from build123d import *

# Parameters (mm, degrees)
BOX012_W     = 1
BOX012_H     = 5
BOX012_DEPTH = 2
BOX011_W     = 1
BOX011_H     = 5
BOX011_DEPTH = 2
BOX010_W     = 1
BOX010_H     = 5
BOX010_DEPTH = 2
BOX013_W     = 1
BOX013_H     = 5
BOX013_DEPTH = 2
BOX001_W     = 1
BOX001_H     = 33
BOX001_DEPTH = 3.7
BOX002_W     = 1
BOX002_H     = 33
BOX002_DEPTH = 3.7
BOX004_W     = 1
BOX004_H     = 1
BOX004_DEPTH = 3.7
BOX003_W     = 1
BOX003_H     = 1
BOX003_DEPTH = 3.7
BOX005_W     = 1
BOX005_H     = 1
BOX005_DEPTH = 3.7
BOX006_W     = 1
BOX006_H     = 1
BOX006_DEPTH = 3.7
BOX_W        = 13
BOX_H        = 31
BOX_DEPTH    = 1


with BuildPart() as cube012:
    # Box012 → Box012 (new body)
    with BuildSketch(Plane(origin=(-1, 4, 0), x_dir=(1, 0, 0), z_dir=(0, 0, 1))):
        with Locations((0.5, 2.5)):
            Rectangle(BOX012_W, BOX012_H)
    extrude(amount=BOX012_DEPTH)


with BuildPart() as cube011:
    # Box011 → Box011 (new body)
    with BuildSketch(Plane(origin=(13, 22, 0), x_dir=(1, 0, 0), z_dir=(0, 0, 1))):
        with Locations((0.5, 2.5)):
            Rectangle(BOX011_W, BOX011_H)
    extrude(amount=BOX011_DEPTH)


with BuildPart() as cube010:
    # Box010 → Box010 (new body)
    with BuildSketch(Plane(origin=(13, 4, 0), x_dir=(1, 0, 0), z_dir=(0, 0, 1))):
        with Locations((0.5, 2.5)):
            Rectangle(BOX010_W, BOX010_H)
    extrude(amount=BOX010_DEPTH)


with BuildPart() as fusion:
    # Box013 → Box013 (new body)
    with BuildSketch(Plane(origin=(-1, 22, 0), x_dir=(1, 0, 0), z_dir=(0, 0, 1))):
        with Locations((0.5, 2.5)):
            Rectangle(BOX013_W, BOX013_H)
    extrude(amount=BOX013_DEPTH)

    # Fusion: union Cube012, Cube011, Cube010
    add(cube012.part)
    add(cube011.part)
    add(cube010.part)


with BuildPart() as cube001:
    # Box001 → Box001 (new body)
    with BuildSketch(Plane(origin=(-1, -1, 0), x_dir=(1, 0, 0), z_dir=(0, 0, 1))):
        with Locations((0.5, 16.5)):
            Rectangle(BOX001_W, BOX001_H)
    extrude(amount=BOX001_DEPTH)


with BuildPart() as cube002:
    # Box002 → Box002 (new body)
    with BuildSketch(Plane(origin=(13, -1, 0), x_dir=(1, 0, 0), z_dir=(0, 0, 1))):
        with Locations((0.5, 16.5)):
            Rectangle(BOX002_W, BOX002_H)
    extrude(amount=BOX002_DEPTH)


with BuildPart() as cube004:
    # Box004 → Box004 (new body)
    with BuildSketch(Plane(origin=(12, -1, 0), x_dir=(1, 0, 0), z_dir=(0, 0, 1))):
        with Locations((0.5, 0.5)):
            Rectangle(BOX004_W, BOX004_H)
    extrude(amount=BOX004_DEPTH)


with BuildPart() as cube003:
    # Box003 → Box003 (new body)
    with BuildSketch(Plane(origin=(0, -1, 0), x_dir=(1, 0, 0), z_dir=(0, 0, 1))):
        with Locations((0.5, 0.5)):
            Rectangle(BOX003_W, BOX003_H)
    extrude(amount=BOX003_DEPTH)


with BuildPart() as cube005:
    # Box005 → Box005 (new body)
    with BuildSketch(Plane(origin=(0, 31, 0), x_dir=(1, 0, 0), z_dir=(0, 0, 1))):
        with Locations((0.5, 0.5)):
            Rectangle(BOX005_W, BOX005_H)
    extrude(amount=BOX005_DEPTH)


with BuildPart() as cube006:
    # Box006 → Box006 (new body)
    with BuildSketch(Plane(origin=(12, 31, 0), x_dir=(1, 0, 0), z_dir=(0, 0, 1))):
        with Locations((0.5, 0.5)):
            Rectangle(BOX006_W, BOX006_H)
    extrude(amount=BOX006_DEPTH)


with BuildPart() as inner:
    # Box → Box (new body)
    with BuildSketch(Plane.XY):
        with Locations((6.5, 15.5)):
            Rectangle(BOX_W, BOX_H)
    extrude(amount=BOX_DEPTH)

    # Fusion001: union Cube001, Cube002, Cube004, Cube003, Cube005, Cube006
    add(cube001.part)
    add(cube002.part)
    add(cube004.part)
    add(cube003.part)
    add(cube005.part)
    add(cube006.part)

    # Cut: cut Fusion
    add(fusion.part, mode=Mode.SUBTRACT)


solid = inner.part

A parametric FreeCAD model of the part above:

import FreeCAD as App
import Part
import Sketcher

V = App.Vector


def add_polygon(sketch, points):
    """Adds a closed chain of lines whose ends are joined by coincident constraints."""
    first, n = sketch.GeometryCount, len(points)
    for a, b in zip(points, points[1:] + points[:1]):
        sketch.addGeometry(Part.LineSegment(App.Vector(*a, 0), App.Vector(*b, 0)), False)
    for i in range(n):
        sketch.addConstraint(Sketcher.Constraint("Coincident", first + i, 2, first + (i + 1) % n, 1))

doc = App.newDocument("Part")
params = doc.addObject("Spreadsheet::Sheet", "Params")
for row, (alias, value) in enumerate([
    ("sketch1_width", "1 mm"),
    ("sketch1_height", "5 mm"),
    ("pad1_length", "2 mm"),
    ("sketch2_width", "1 mm"),
    ("sketch2_height", "5 mm"),
    ("pad2_length", "2 mm"),
    ("sketch3_width", "1 mm"),
    ("sketch3_height", "5 mm"),
    ("pad3_length", "2 mm"),
    ("sketch4_width", "1 mm"),
    ("sketch4_height", "5 mm"),
    ("pad4_length", "2 mm"),
    ("sketch5_width", "1 mm"),
    ("sketch5_height", "33 mm"),
    ("pad5_length", "3.7 mm"),
    ("sketch6_width", "1 mm"),
    ("sketch6_height", "33 mm"),
    ("pad6_length", "3.7 mm"),
    ("sketch7_width", "1 mm"),
    ("pad7_length", "3.7 mm"),
    ("sketch8_width", "1 mm"),
    ("pad8_length", "3.7 mm"),
    ("sketch9_width", "1 mm"),
    ("pad9_length", "3.7 mm"),
    ("sketch10_width", "1 mm"),
    ("pad10_length", "3.7 mm"),
    ("sketch11_width", "13 mm"),
    ("sketch11_height", "31 mm"),
    ("pad11_length", "1 mm"),
], start=1):
    params.set(f"A{row}", alias)
    params.set(f"B{row}", "=" + value)
    params.setAlias(f"B{row}", alias)

body = doc.addObject("PartDesign::Body", "Body")

sketch1 = body.newObject("Sketcher::SketchObject", "Sketch")
sketch1.AttachmentSupport = (doc.getObject("XY_Plane"), [""])
sketch1.MapMode = "FlatFace"
add_polygon(sketch1, [(-1, 9), (-1, 4), (0, 4), (0, 9)])
sketch1.addConstraint([
    Sketcher.Constraint("Vertical", 0),
    Sketcher.Constraint("Horizontal", 1),
    Sketcher.Constraint("Vertical", 2),
    Sketcher.Constraint("Horizontal", 3),
    Sketcher.Constraint("PointOnObject", 1, 2, -2),
    Sketcher.Constraint("DistanceX", 1, 1, 1, 2, 1.0),
    Sketcher.Constraint("DistanceY", 0, 2, 0, 1, 5.0),
    Sketcher.Constraint("DistanceY", -1, 1, 0, 2, 4.0),
])
sketch1.setExpression("Constraints[9]", "Params.sketch1_width")
sketch1.setExpression("Constraints[10]", "Params.sketch1_height")
pad1 = body.newObject("PartDesign::Pad", "Pad")
pad1.Profile = sketch1
pad1.setExpression("Length", "Params.pad1_length")
body2 = doc.addObject("PartDesign::Body", "Body001")

sketch2 = body2.newObject("Sketcher::SketchObject", "Sketch001")
sketch2.AttachmentSupport = (doc.getObject("XY_Plane001"), [""])
sketch2.MapMode = "FlatFace"
add_polygon(sketch2, [(13, 27), (13, 22), (14, 22), (14, 27)])
sketch2.addConstraint([
    Sketcher.Constraint("Vertical", 0),
    Sketcher.Constraint("Horizontal", 1),
    Sketcher.Constraint("Vertical", 2),
    Sketcher.Constraint("Horizontal", 3),
    Sketcher.Constraint("DistanceX", 1, 1, 1, 2, 1.0),
    Sketcher.Constraint("DistanceY", 0, 2, 0, 1, 5.0),
    Sketcher.Constraint("DistanceX", -1, 1, 0, 2, 13.0),
    Sketcher.Constraint("DistanceY", -1, 1, 0, 2, 22.0),
])
sketch2.setExpression("Constraints[8]", "Params.sketch2_width")
sketch2.setExpression("Constraints[9]", "Params.sketch2_height")
pad2 = body2.newObject("PartDesign::Pad", "Pad001")
pad2.Profile = sketch2
pad2.setExpression("Length", "Params.pad2_length")
body3 = doc.addObject("PartDesign::Body", "Body002")

sketch3 = body3.newObject("Sketcher::SketchObject", "Sketch002")
sketch3.AttachmentSupport = (doc.getObject("XY_Plane002"), [""])
sketch3.MapMode = "FlatFace"
add_polygon(sketch3, [(13, 9), (13, 4), (14, 4), (14, 9)])
sketch3.addConstraint([
    Sketcher.Constraint("Vertical", 0),
    Sketcher.Constraint("Horizontal", 1),
    Sketcher.Constraint("Vertical", 2),
    Sketcher.Constraint("Horizontal", 3),
    Sketcher.Constraint("DistanceX", 1, 1, 1, 2, 1.0),
    Sketcher.Constraint("DistanceY", 0, 2, 0, 1, 5.0),
    Sketcher.Constraint("DistanceX", -1, 1, 0, 2, 13.0),
    Sketcher.Constraint("DistanceY", -1, 1, 0, 2, 4.0),
])
sketch3.setExpression("Constraints[8]", "Params.sketch3_width")
sketch3.setExpression("Constraints[9]", "Params.sketch3_height")
pad3 = body3.newObject("PartDesign::Pad", "Pad002")
pad3.Profile = sketch3
pad3.setExpression("Length", "Params.pad3_length")
body4 = doc.addObject("PartDesign::Body", "Body003")
body4.AllowCompound = True

sketch4 = body4.newObject("Sketcher::SketchObject", "Sketch003")
sketch4.AttachmentSupport = (doc.getObject("XY_Plane003"), [""])
sketch4.MapMode = "FlatFace"
add_polygon(sketch4, [(-1, 27), (-1, 22), (0, 22), (0, 27)])
sketch4.addConstraint([
    Sketcher.Constraint("Vertical", 0),
    Sketcher.Constraint("Horizontal", 1),
    Sketcher.Constraint("Vertical", 2),
    Sketcher.Constraint("Horizontal", 3),
    Sketcher.Constraint("PointOnObject", 1, 2, -2),
    Sketcher.Constraint("DistanceX", 1, 1, 1, 2, 1.0),
    Sketcher.Constraint("DistanceY", 0, 2, 0, 1, 5.0),
    Sketcher.Constraint("DistanceY", -1, 1, 0, 2, 22.0),
])
sketch4.setExpression("Constraints[9]", "Params.sketch4_width")
sketch4.setExpression("Constraints[10]", "Params.sketch4_height")
pad4 = body4.newObject("PartDesign::Pad", "Pad003")
pad4.Profile = sketch4
pad4.setExpression("Length", "Params.pad4_length")
doc.recompute()

boolean = body4.newObject("PartDesign::Boolean", "Boolean")
boolean.Type = "Fuse"
boolean.addObjects([body])
doc.recompute()

boolean2 = body4.newObject("PartDesign::Boolean", "Boolean001")
boolean2.Type = "Fuse"
boolean2.addObjects([body2])
doc.recompute()

boolean3 = body4.newObject("PartDesign::Boolean", "Boolean002")
boolean3.Type = "Fuse"
boolean3.addObjects([body3])
body5 = doc.addObject("PartDesign::Body", "Body004")

sketch5 = body5.newObject("Sketcher::SketchObject", "Sketch004")
sketch5.AttachmentSupport = (doc.getObject("XY_Plane004"), [""])
sketch5.MapMode = "FlatFace"
add_polygon(sketch5, [(-1, 32), (-1, -1), (0, -1), (0, 32)])
sketch5.addConstraint([
    Sketcher.Constraint("Vertical", 0),
    Sketcher.Constraint("Horizontal", 1),
    Sketcher.Constraint("Vertical", 2),
    Sketcher.Constraint("Horizontal", 3),
    Sketcher.Constraint("PointOnObject", 1, 2, -2),
    Sketcher.Constraint("DistanceX", 1, 1, 1, 2, 1.0),
    Sketcher.Constraint("DistanceY", 0, 2, 0, 1, 33.0),
    Sketcher.Constraint("DistanceY", 0, 2, -1, 1, 1.0),
])
sketch5.setExpression("Constraints[9]", "Params.sketch5_width")
sketch5.setExpression("Constraints[10]", "Params.sketch5_height")
pad5 = body5.newObject("PartDesign::Pad", "Pad004")
pad5.Profile = sketch5
pad5.setExpression("Length", "Params.pad5_length")
body6 = doc.addObject("PartDesign::Body", "Body005")

sketch6 = body6.newObject("Sketcher::SketchObject", "Sketch005")
sketch6.AttachmentSupport = (doc.getObject("XY_Plane005"), [""])
sketch6.MapMode = "FlatFace"
add_polygon(sketch6, [(13, 32), (13, -1), (14, -1), (14, 32)])
sketch6.addConstraint([
    Sketcher.Constraint("Vertical", 0),
    Sketcher.Constraint("Horizontal", 1),
    Sketcher.Constraint("Vertical", 2),
    Sketcher.Constraint("Horizontal", 3),
    Sketcher.Constraint("DistanceX", 1, 1, 1, 2, 1.0),
    Sketcher.Constraint("DistanceY", 0, 2, 0, 1, 33.0),
    Sketcher.Constraint("DistanceX", -1, 1, 0, 2, 13.0),
    Sketcher.Constraint("DistanceY", 0, 2, -1, 1, 1.0),
])
sketch6.setExpression("Constraints[8]", "Params.sketch6_width")
sketch6.setExpression("Constraints[9]", "Params.sketch6_height")
pad6 = body6.newObject("PartDesign::Pad", "Pad005")
pad6.Profile = sketch6
pad6.setExpression("Length", "Params.pad6_length")
body7 = doc.addObject("PartDesign::Body", "Body006")

sketch7 = body7.newObject("Sketcher::SketchObject", "Sketch006")
sketch7.AttachmentSupport = (doc.getObject("XY_Plane006"), [""])
sketch7.MapMode = "FlatFace"
add_polygon(sketch7, [(12, 0), (12, -1), (13, -1), (13, 0)])
sketch7.addConstraint([
    Sketcher.Constraint("Vertical", 0),
    Sketcher.Constraint("Horizontal", 1),
    Sketcher.Constraint("Vertical", 2),
    Sketcher.Constraint("Horizontal", 3),
    Sketcher.Constraint("PointOnObject", 2, 2, -1),
    Sketcher.Constraint("Equal", 3, 0),
    Sketcher.Constraint("DistanceX", 1, 1, 1, 2, 1.0),
    Sketcher.Constraint("DistanceX", -1, 1, 0, 2, 12.0),
])
sketch7.setExpression("Constraints[10]", "Params.sketch7_width")
pad7 = body7.newObject("PartDesign::Pad", "Pad006")
pad7.Profile = sketch7
pad7.setExpression("Length", "Params.pad7_length")
body8 = doc.addObject("PartDesign::Body", "Body007")

sketch8 = body8.newObject("Sketcher::SketchObject", "Sketch007")
sketch8.AttachmentSupport = (doc.getObject("XY_Plane007"), [""])
sketch8.MapMode = "FlatFace"
add_polygon(sketch8, [(0, 0), (0, -1), (1, -1), (1, 0)])
sketch8.addConstraint([
    Sketcher.Constraint("Vertical", 0),
    Sketcher.Constraint("Horizontal", 1),
    Sketcher.Constraint("Vertical", 2),
    Sketcher.Constraint("Horizontal", 3),
    Sketcher.Constraint("Coincident", 3, 2, -1, 1),
    Sketcher.Constraint("Equal", 3, 0),
    Sketcher.Constraint("DistanceX", 1, 1, 1, 2, 1.0),
])
sketch8.setExpression("Constraints[10]", "Params.sketch8_width")
pad8 = body8.newObject("PartDesign::Pad", "Pad007")
pad8.Profile = sketch8
pad8.setExpression("Length", "Params.pad8_length")
body9 = doc.addObject("PartDesign::Body", "Body008")

sketch9 = body9.newObject("Sketcher::SketchObject", "Sketch008")
sketch9.AttachmentSupport = (doc.getObject("XY_Plane008"), [""])
sketch9.MapMode = "FlatFace"
add_polygon(sketch9, [(0, 32), (0, 31), (1, 31), (1, 32)])
sketch9.addConstraint([
    Sketcher.Constraint("Vertical", 0),
    Sketcher.Constraint("Horizontal", 1),
    Sketcher.Constraint("Vertical", 2),
    Sketcher.Constraint("Horizontal", 3),
    Sketcher.Constraint("PointOnObject", 0, 2, -2),
    Sketcher.Constraint("Equal", 3, 0),
    Sketcher.Constraint("DistanceX", 1, 1, 1, 2, 1.0),
    Sketcher.Constraint("DistanceY", -1, 1, 0, 2, 31.0),
])
sketch9.setExpression("Constraints[10]", "Params.sketch9_width")
pad9 = body9.newObject("PartDesign::Pad", "Pad008")
pad9.Profile = sketch9
pad9.setExpression("Length", "Params.pad9_length")
body10 = doc.addObject("PartDesign::Body", "Body009")

sketch10 = body10.newObject("Sketcher::SketchObject", "Sketch009")
sketch10.AttachmentSupport = (doc.getObject("XY_Plane009"), [""])
sketch10.MapMode = "FlatFace"
add_polygon(sketch10, [(12, 32), (12, 31), (13, 31), (13, 32)])
sketch10.addConstraint([
    Sketcher.Constraint("Vertical", 0),
    Sketcher.Constraint("Horizontal", 1),
    Sketcher.Constraint("Vertical", 2),
    Sketcher.Constraint("Horizontal", 3),
    Sketcher.Constraint("Equal", 3, 0),
    Sketcher.Constraint("DistanceX", 1, 1, 1, 2, 1.0),
    Sketcher.Constraint("DistanceX", -1, 1, 0, 2, 12.0),
    Sketcher.Constraint("DistanceY", -1, 1, 0, 2, 31.0),
])
sketch10.setExpression("Constraints[9]", "Params.sketch10_width")
pad10 = body10.newObject("PartDesign::Pad", "Pad009")
pad10.Profile = sketch10
pad10.setExpression("Length", "Params.pad10_length")
body11 = doc.addObject("PartDesign::Body", "Body010")

sketch11 = body11.newObject("Sketcher::SketchObject", "Sketch010")
sketch11.AttachmentSupport = (doc.getObject("XY_Plane010"), [""])
sketch11.MapMode = "FlatFace"
add_polygon(sketch11, [(0, 31), (0, 0), (13, 0), (13, 31)])
sketch11.addConstraint([
    Sketcher.Constraint("Vertical", 0),
    Sketcher.Constraint("Horizontal", 1),
    Sketcher.Constraint("Vertical", 2),
    Sketcher.Constraint("Horizontal", 3),
    Sketcher.Constraint("Coincident", 0, 2, -1, 1),
    Sketcher.Constraint("DistanceX", 1, 1, 1, 2, 13.0),
    Sketcher.Constraint("DistanceY", 0, 2, 0, 1, 31.0),
])
sketch11.setExpression("Constraints[9]", "Params.sketch11_width")
sketch11.setExpression("Constraints[10]", "Params.sketch11_height")
pad11 = body11.newObject("PartDesign::Pad", "Pad010")
pad11.Profile = sketch11
pad11.setExpression("Length", "Params.pad11_length")
doc.recompute()

boolean4 = body11.newObject("PartDesign::Boolean", "Boolean003")
boolean4.Type = "Fuse"
boolean4.addObjects([body5])
doc.recompute()

boolean5 = body11.newObject("PartDesign::Boolean", "Boolean004")
boolean5.Type = "Fuse"
boolean5.addObjects([body6])
doc.recompute()

boolean6 = body11.newObject("PartDesign::Boolean", "Boolean005")
boolean6.Type = "Fuse"
boolean6.addObjects([body7])
doc.recompute()

boolean7 = body11.newObject("PartDesign::Boolean", "Boolean006")
boolean7.Type = "Fuse"
boolean7.addObjects([body8])
doc.recompute()

boolean8 = body11.newObject("PartDesign::Boolean", "Boolean007")
boolean8.Type = "Fuse"
boolean8.addObjects([body9])
doc.recompute()

boolean9 = body11.newObject("PartDesign::Boolean", "Boolean008")
boolean9.Type = "Fuse"
boolean9.addObjects([body10])
doc.recompute()

boolean10 = body11.newObject("PartDesign::Boolean", "Boolean009")
boolean10.Type = "Cut"
boolean10.addObjects([body4])

doc.recompute()
